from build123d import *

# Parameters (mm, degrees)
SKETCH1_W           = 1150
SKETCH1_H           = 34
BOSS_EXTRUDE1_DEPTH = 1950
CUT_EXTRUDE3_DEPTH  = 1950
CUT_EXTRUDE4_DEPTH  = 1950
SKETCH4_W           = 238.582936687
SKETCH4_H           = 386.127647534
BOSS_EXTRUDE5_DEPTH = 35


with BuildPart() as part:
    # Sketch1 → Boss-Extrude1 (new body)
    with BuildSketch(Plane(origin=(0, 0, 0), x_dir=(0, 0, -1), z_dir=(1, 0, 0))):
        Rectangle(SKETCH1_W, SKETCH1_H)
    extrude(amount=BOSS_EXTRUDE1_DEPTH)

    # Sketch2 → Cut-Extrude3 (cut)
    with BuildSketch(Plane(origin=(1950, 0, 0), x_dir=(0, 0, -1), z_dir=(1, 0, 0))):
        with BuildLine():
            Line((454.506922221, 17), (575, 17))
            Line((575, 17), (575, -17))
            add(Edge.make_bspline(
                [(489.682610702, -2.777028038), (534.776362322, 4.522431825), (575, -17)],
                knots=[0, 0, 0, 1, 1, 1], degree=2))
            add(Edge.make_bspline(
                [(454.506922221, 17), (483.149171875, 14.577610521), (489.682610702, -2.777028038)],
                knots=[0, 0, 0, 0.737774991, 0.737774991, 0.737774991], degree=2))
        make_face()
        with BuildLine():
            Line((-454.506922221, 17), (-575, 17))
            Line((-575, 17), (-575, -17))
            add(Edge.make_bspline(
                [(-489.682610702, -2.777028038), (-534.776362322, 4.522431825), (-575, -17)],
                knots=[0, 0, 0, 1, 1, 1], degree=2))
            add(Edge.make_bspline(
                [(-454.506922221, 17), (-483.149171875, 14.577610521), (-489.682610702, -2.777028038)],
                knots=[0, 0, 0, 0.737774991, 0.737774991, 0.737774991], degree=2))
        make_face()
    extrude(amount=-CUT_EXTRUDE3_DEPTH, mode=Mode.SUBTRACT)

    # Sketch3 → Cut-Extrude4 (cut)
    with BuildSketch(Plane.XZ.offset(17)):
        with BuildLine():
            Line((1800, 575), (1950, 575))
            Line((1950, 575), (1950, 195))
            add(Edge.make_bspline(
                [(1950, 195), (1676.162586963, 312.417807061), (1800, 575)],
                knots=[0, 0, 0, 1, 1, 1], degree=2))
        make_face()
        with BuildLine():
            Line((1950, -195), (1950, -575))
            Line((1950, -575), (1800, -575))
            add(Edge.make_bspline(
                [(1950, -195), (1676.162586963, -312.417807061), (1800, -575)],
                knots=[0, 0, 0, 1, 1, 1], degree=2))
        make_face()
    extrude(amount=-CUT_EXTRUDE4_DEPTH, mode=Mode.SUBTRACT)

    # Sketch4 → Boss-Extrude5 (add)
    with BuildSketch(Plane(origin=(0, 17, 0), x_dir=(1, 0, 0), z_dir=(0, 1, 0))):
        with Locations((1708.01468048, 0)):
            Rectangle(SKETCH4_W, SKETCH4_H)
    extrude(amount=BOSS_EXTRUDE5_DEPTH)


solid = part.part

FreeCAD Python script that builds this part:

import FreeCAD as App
import Part
import Sketcher

V = App.Vector
Q = App.Units.Quantity


def add_polygon(sketch, points):
    """Adds a closed chain of lines whose ends are joined by coincident constraints."""
    first, n = sketch.GeometryCount, len(points)
    for a, b in zip(points, points[1:] + points[:1]):
        sketch.addGeometry(Part.LineSegment(App.Vector(*a, 0), App.Vector(*b, 0)), False)
    for i in range(n):
        sketch.addConstraint(Sketcher.Constraint("Coincident", first + i, 2, first + (i + 1) % n, 1))

doc = App.newDocument("Part")
params = doc.addObject("Spreadsheet::Sheet", "Params")
for row, (alias, value) in enumerate([
    ("sketch1_width", "34 mm"),
    ("sketch1_height", "1150 mm"),
    ("pad1_length", "1950 mm"),
    ("pocket1_length", "1950 mm"),
    ("pocket2_length", "1950 mm"),
    ("pad2_length", "35 mm"),
], start=1):
    params.set(f"A{row}", alias)
    params.set(f"B{row}", "=" + value)
    params.setAlias(f"B{row}", alias)

body = doc.addObject("PartDesign::Body", "Body")

sketch1 = body.newObject("Sketcher::SketchObject", "Sketch")
sketch1.AttachmentSupport = (doc.getObject("YZ_Plane"), [""])
sketch1.MapMode = "FlatFace"
add_polygon(sketch1, [(17, 575), (-17, 575), (-17, -575), (17, -575)])
sketch1.addConstraint([
    Sketcher.Constraint("Horizontal", 0),
    Sketcher.Constraint("Vertical", 1),
    Sketcher.Constraint("Horizontal", 2),
    Sketcher.Constraint("Vertical", 3),
    Sketcher.Constraint("Symmetric", 0, 2, 2, 2, -1, 1),
    Sketcher.Constraint("DistanceX", 0, 2, 0, 1, Q("34 mm")),
    Sketcher.Constraint("DistanceY", 1, 2, 1, 1, Q("1150 mm")),
])
sketch1.setExpression("Constraints[9]", "Params.sketch1_width")
sketch1.setExpression("Constraints[10]", "Params.sketch1_height")
pad1 = body.newObject("PartDesign::Pad", "Pad")
pad1.Profile = sketch1
pad1.setExpression("Length", "Params.pad1_length")

sketch2 = body.newObject("Sketcher::SketchObject", "Sketch001")
sketch2.AttachmentSupport = (doc.getObject("YZ_Plane"), [""])
sketch2.MapMode = "FlatFace"
sketch2.AttachmentOffset = App.Placement(V(0, 0, 1950), App.Rotation())
sketch2.addGeometry([
    Part.LineSegment(V(17, -575, 0), V(17, -454.506922, 0)),
    Part.BSplineCurve([V(17, -454.506922, 0), V(14.577611, -483.149172, 0), V(-2.777028, -489.682611, 0)], [3, 3], [0, 0.737774991], False, 2, [1, 1, 1], False),
    Part.BSplineCurve([V(-2.777028, -489.682611, 0), V(4.522432, -534.776362, 0), V(-17, -575, 0)], [3, 3], [0, 1], False, 2, [1, 1, 1], False),
    Part.LineSegment(V(-17, -575, 0), V(17, -575, 0)),
    Part.LineSegment(V(17, 454.506922, 0), V(17, 575, 0)),
    Part.LineSegment(V(17, 575, 0), V(-17, 575, 0)),
    Part.BSplineCurve([V(-2.777028, 489.682611, 0), V(4.522432, 534.776362, 0), V(-17, 575, 0)], [3, 3], [0, 1], False, 2, [1, 1, 1], False),
    Part.BSplineCurve([V(17, 454.506922, 0), V(14.577611, 483.149172, 0), V(-2.777028, 489.682611, 0)], [3, 3], [0, 0.737774991], False, 2, [1, 1, 1], False),
], False)
sketch2.addConstraint([
    Sketcher.Constraint("Block", 1),
    Sketcher.Constraint("Block", 2),
    Sketcher.Constraint("Block", 6),
    Sketcher.Constraint("Block", 7),
    Sketcher.Constraint("Coincident", 0, 2, 1, 1),
    Sketcher.Constraint("Coincident", 2, 2, 3, 1),
    Sketcher.Constraint("Coincident", 3, 2, 0, 1),
    Sketcher.Constraint("Coincident", 4, 2, 5, 1),
    Sketcher.Constraint("Coincident", 5, 2, 6, 2),
    Sketcher.Constraint("Coincident", 7, 1, 4, 1),
    Sketcher.Constraint("Vertical", 0),
    Sketcher.Constraint("Horizontal", 3),
    Sketcher.Constraint("Vertical", 4),
    Sketcher.Constraint("Horizontal", 5),
])
pocket1 = body.newObject("PartDesign::Pocket", "Pocket")
pocket1.Profile = sketch2
pocket1.setExpression("Length", "Params.pocket1_length")

sketch3 = body.newObject("Sketcher::SketchObject", "Sketch002")
sketch3.AttachmentSupport = (doc.getObject("XZ_Plane"), [""])
sketch3.MapMode = "FlatFace"
sketch3.AttachmentOffset = App.Placement(V(0, 0, 17), App.Rotation())
sketch3.addGeometry([
    Part.LineSegment(V(1950, 575, 0), V(1800, 575, 0)),
    Part.BSplineCurve([V(1950, 195, 0), V(1676.162587, 312.417807, 0), V(1800, 575, 0)], [3, 3], [0, 1], False, 2, [1, 1, 1], False),
    Part.LineSegment(V(1950, 195, 0), V(1950, 575, 0)),
    Part.LineSegment(V(1950, -575, 0), V(1950, -195, 0)),
    Part.BSplineCurve([V(1950, -195, 0), V(1676.162587, -312.417807, 0), V(1800, -575, 0)], [3, 3], [0, 1], False, 2, [1, 1, 1], False),
    Part.LineSegment(V(1800, -575, 0), V(1950, -575, 0)),
], False)
sketch3.addConstraint([
    Sketcher.Constraint("Block", 1),
    Sketcher.Constraint("Block", 4),
    Sketcher.Constraint("Coincident", 0, 2, 1, 2),
    Sketcher.Constraint("Coincident", 1, 1, 2, 1),
    Sketcher.Constraint("Coincident", 2, 2, 0, 1),
    Sketcher.Constraint("Coincident", 3, 2, 4, 1),
    Sketcher.Constraint("Coincident", 4, 2, 5, 1),
    Sketcher.Constraint("Coincident", 5, 2, 3, 1),
    Sketcher.Constraint("Horizontal", 0),
    Sketcher.Constraint("Vertical", 2),
    Sketcher.Constraint("Vertical", 3),
    Sketcher.Constraint("Horizontal", 5),
])
pocket2 = body.newObject("PartDesign::Pocket", "Pocket001")
pocket2.Profile = sketch3
pocket2.setExpression("Length", "Params.pocket2_length")

sketch4 = body.newObject("Sketcher::SketchObject", "Sketch003")
sketch4.AttachmentSupport = (doc.getObject("XZ_Plane"), [""])
sketch4.MapMode = "FlatFace"
sketch4.AttachmentOffset = App.Placement(V(0, 0, -17), App.Rotation())
add_polygon(sketch4, [(1589, -193), (1589, 193), (1827, 193), (1827, -193)])
sketch4.addConstraint([
    Sketcher.Constraint("Vertical", 0),
    Sketcher.Constraint("Horizontal", 1),
    Sketcher.Constraint("Vertical", 2),
    Sketcher.Constraint("Horizontal", 3),
    Sketcher.Constraint("DistanceX", 1, 1, 1, 2, Q("238.582937 mm")),
    Sketcher.Constraint("DistanceY", 0, 1, 0, 2, Q("386.127648 mm")),
    Sketcher.Constraint("DistanceX", -1, 1, 1, 2, Q("1827.306149 mm")),
    Sketcher.Constraint("DistanceY", -1, 1, 0, 2, Q("193.063824 mm")),
])
pad2 = body.newObject("PartDesign::Pad", "Pad001")
pad2.Profile = sketch4
pad2.setExpression("Length", "Params.pad2_length")
pad2.Reversed = True

doc.recompute()
